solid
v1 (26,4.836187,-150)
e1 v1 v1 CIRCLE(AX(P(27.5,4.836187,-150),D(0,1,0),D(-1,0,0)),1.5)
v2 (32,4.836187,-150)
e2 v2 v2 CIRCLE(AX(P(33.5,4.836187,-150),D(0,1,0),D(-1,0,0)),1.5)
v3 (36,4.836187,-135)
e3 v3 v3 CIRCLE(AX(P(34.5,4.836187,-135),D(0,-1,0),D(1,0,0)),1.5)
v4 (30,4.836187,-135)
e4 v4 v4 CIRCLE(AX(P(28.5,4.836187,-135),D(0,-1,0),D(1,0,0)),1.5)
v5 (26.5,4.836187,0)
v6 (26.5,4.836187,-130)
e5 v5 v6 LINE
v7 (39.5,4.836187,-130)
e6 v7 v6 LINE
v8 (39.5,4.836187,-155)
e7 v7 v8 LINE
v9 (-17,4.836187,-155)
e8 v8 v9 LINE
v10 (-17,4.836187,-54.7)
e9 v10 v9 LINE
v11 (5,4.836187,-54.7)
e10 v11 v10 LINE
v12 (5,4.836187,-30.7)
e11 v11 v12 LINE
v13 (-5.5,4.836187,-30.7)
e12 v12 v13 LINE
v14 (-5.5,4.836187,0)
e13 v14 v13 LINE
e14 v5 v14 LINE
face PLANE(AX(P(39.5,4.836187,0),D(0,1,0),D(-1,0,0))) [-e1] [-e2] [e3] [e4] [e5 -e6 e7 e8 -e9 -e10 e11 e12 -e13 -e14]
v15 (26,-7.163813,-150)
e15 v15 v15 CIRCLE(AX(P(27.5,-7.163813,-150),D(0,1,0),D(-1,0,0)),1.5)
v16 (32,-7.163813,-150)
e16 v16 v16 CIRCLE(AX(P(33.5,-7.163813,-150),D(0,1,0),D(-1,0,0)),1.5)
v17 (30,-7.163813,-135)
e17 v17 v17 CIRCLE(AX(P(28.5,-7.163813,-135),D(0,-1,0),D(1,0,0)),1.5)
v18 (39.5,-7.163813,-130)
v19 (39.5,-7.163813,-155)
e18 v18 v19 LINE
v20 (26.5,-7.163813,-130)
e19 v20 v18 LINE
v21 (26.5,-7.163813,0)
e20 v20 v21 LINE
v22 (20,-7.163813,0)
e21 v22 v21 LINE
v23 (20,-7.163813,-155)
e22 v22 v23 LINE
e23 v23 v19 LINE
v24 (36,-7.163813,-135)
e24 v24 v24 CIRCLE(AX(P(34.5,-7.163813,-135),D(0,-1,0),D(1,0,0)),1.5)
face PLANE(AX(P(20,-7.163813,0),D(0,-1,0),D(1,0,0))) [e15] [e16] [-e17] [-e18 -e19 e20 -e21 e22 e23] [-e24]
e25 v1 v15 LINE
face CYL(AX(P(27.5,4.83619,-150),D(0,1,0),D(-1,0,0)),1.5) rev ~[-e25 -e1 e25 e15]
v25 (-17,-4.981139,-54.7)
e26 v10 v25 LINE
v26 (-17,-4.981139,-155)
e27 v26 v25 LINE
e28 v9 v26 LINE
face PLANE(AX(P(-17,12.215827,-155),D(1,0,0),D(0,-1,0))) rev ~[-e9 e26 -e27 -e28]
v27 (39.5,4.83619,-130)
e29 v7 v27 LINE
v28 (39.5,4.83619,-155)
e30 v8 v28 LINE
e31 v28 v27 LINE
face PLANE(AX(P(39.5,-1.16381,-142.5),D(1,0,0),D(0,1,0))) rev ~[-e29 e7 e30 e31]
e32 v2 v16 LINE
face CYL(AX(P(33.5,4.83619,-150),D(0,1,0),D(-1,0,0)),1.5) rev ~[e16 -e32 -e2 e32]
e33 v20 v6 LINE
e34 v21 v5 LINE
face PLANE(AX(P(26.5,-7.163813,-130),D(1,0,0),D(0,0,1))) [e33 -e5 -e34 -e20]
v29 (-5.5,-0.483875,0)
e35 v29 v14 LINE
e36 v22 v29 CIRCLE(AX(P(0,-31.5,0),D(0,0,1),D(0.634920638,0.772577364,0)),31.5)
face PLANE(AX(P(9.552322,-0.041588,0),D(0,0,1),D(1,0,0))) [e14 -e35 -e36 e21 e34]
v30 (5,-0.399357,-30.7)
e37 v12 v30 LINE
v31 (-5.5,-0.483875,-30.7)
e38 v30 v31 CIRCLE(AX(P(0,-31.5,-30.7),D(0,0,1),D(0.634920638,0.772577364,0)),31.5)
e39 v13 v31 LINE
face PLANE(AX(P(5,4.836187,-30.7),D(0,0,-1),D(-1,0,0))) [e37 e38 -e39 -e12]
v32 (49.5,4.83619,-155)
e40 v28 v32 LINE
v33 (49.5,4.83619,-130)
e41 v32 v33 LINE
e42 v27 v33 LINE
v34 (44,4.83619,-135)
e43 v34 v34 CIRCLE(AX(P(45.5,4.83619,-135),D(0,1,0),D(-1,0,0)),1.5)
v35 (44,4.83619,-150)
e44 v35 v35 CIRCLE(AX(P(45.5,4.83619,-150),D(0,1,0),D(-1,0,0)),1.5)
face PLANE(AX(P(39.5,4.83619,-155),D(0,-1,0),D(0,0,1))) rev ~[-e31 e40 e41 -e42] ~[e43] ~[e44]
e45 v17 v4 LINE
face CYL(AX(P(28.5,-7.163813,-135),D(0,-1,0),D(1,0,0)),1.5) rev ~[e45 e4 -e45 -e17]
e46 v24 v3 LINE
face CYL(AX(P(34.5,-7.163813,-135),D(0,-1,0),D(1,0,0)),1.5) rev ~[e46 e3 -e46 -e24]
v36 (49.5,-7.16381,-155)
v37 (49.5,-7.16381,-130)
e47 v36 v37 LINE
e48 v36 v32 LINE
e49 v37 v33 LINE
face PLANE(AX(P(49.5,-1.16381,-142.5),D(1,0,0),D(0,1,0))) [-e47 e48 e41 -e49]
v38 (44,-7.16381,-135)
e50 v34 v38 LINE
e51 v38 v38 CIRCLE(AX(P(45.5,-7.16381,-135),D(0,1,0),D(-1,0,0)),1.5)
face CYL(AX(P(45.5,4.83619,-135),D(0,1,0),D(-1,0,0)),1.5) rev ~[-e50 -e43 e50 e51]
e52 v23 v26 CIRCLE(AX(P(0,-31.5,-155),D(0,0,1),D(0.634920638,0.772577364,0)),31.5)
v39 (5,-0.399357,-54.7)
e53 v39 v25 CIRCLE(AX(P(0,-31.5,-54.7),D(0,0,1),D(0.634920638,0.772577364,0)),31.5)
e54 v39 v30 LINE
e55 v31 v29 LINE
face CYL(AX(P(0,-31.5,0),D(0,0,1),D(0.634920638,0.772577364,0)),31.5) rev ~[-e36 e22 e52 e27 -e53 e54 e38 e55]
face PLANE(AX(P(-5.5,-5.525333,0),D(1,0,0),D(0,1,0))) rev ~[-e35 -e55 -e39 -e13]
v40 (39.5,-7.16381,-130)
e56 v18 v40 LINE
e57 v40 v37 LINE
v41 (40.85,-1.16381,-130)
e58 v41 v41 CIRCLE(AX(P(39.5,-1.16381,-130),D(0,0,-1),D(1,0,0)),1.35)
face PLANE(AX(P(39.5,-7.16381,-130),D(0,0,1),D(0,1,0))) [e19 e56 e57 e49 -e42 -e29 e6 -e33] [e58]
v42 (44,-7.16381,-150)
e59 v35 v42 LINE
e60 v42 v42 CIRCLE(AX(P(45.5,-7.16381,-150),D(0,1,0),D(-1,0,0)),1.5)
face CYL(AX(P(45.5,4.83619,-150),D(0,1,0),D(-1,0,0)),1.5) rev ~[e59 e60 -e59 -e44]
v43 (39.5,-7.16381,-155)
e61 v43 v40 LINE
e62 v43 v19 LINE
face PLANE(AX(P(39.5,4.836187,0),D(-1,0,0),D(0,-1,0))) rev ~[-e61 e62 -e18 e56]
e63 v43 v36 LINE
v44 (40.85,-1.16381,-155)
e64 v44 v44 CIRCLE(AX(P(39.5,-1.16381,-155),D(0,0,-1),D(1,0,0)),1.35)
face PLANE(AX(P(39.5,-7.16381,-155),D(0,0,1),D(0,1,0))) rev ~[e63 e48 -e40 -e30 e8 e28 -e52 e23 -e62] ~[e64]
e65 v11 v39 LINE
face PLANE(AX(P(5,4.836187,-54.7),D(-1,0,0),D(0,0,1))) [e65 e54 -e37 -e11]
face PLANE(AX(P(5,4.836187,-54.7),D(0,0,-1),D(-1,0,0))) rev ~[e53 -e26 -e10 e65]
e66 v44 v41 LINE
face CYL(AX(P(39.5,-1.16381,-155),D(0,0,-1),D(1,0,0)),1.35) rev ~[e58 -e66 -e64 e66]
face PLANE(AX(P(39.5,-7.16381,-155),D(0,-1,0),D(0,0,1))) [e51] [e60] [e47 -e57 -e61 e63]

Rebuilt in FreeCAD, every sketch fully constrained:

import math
import FreeCAD as App
import Part
import Sketcher
from FreeCAD import Vector

doc = App.newDocument("Part")
body = doc.addObject("PartDesign::Body", "Body")

# Sketch on XY plane
sketch1 = body.newObject("Sketcher::SketchObject", "Sketch")
sketch1.AttachmentSupport = (doc.getObject("XY_Plane"), [""])
sketch1.MapMode = "FlatFace"
sketch1.addGeometry([
    Part.LineSegment(Vector(40, 5, 0), Vector(-20, 5, 0)),  # 0
    Part.LineSegment(Vector(-20, 5, 0), Vector(-20, -7, 0)),  # 1
    Part.ArcOfCircle(Part.Circle(Vector(0, -31, 0), Vector(0, 0, 1), 31), math.radians(51), math.radians(129)),  # 2
    Part.LineSegment(Vector(20, -7, 0), Vector(40, -7, 0)),  # 3
    Part.LineSegment(Vector(40, -7, 0), Vector(40, 5, 0)),  # 4
], False)
sketch1.addConstraint([
    Sketcher.Constraint("Coincident", 0, 2, 1, 1),
    Sketcher.Constraint("Coincident", 1, 2, 2, 2),
    Sketcher.Constraint("Coincident", 2, 1, 3, 1),
    Sketcher.Constraint("Coincident", 3, 2, 4, 1),
    Sketcher.Constraint("Coincident", 4, 2, 0, 1),
    Sketcher.Constraint("Horizontal", 0),
    Sketcher.Constraint("Vertical", 1),
    Sketcher.Constraint("Horizontal", 3),
    Sketcher.Constraint("Vertical", 4),
    Sketcher.Constraint("Symmetric", 1, 2, 2, 1, -2),
    Sketcher.Constraint("Radius", 2, 31.5),
    Sketcher.Constraint("DistanceY", 1, 2, 1, 1, 12.0),
    Sketcher.Constraint("DistanceX", 0, 2, 0, 1, 59.5),
    Sketcher.Constraint("DistanceX", 3, 1, 3, 2, 19.5),
    Sketcher.Constraint("DistanceY", 2, 3, -1, 1, 31.5),
])
pad1 = body.newObject("PartDesign::Pad", "Pad")
pad1.Profile = sketch1
pad1.Length = 155
pad1.Reversed = True

# Sketch on XZ plane
sketch2 = body.newObject("Sketcher::SketchObject", "Sketch001")
sketch2.AttachmentSupport = (doc.getObject("XZ_Plane"), [""])
sketch2.MapMode = "FlatFace"
sketch2.AttachmentOffset = App.Placement(Vector(0, 0, 7.163813), App.Rotation())
sketch2.addGeometry([
    Part.Circle(Vector(28.5, -135, 0), Vector(0, 0, 1), 1.5),  # 0
    Part.Circle(Vector(34.5, -135, 0), Vector(0, 0, 1), 1.5),  # 1
    Part.LineSegment(Vector(26.5, 0, 0), Vector(26.5, -130, 0)),  # 2
    Part.LineSegment(Vector(26.5, -130, 0), Vector(39.5, -130, 0)),  # 3
    Part.LineSegment(Vector(39.5, -130, 0), Vector(39.5, 0, 0)),  # 4
    Part.LineSegment(Vector(39.5, 0, 0), Vector(26.5, 0, 0)),  # 5
], False)
sketch2.addConstraint([
    Sketcher.Constraint("Coincident", 2, 2, 3, 1),
    Sketcher.Constraint("Coincident", 3, 2, 4, 1),
    Sketcher.Constraint("Coincident", 4, 2, 5, 1),
    Sketcher.Constraint("Coincident", 5, 2, 2, 1),
    Sketcher.Constraint("Vertical", 2),
    Sketcher.Constraint("Horizontal", 3),
    Sketcher.Constraint("Vertical", 4),
    Sketcher.Constraint("Horizontal", 5),
    Sketcher.Constraint("Equal", 0, 1),
    Sketcher.Constraint("PointOnObject", 4, 2, -1),
    Sketcher.Constraint("Horizontal", 0, 3, 1, 3),
    Sketcher.Constraint("Diameter", 0, 3.0),
    Sketcher.Constraint("DistanceX", 3, 1, 3, 2, 13.0),
    Sketcher.Constraint("DistanceY", 2, 2, 2, 1, 130.0),
    Sketcher.Constraint("DistanceY", 0, 3, -1, 1, 135.0),
    Sketcher.Constraint("DistanceX", 0, 3, 1, 3, 6.0),
    Sketcher.Constraint("DistanceX", 2, 2, 0, 3, 2.0),
    Sketcher.Constraint("DistanceX", -1, 1, 0, 3, 28.5),
])
pocket1 = body.newObject("PartDesign::Pocket", "Pocket")
pocket1.Profile = sketch2
pocket1.Type = "ThroughAll"

# Sketch on XY plane
sketch3 = body.newObject("Sketcher::SketchObject", "Sketch002")
sketch3.AttachmentSupport = (doc.getObject("XY_Plane"), [""])
sketch3.MapMode = "FlatFace"
sketch3.AttachmentOffset = App.Placement(Vector(0, 0, -155), App.Rotation())
sketch3.addGeometry([
    Part.LineSegment(Vector(-23, -12, 0), Vector(-23, 12, 0)),
    Part.LineSegment(Vector(-23, 12, 0), Vector(-17, 12, 0)),
    Part.LineSegment(Vector(-17, 12, 0), Vector(-17, -12, 0)),
    Part.LineSegment(Vector(-17, -12, 0), Vector(-23, -12, 0)),
], False)
sketch3.addConstraint([
    Sketcher.Constraint("Coincident", 0, 2, 1, 1),
    Sketcher.Constraint("Coincident", 1, 2, 2, 1),
    Sketcher.Constraint("Coincident", 2, 2, 3, 1),
    Sketcher.Constraint("Coincident", 3, 2, 0, 1),
    Sketcher.Constraint("Vertical", 0),
    Sketcher.Constraint("Horizontal", 1),
    Sketcher.Constraint("Vertical", 2),
    Sketcher.Constraint("Horizontal", 3),
    Sketcher.Constraint("DistanceX", 1, 2, -1, 1, 17.0),
    Sketcher.Constraint("DistanceX", 1, 1, 1, 2, 5.583172),
    Sketcher.Constraint("DistanceY", 0, 1, 0, 2, 23.950112),
    Sketcher.Constraint("DistanceY", -1, 1, 0, 2, 12.215827),
])
pocket2 = body.newObject("PartDesign::Pocket", "Pocket001")
pocket2.Profile = sketch3
pocket2.Type = "ThroughAll"
pocket2.Reversed = True

# Sketch on XZ plane
sketch4 = body.newObject("Sketcher::SketchObject", "Sketch003")
sketch4.AttachmentSupport = (doc.getObject("XZ_Plane"), [""])
sketch4.MapMode = "FlatFace"
sketch4.AttachmentOffset = App.Placement(Vector(0, 0, -4.836187), App.Rotation())
sketch4.addGeometry([
    Part.LineSegment(Vector(5, -31, 0), Vector(5, -55, 0)),
    Part.LineSegment(Vector(5, -55, 0), Vector(-17, -55, 0)),
    Part.LineSegment(Vector(-17, -55, 0), Vector(-17, -31, 0)),
    Part.LineSegment(Vector(-17, -31, 0), Vector(5, -31, 0)),
], False)
sketch4.addConstraint([
    Sketcher.Constraint("Coincident", 0, 2, 1, 1),
    Sketcher.Constraint("Coincident", 1, 2, 2, 1),
    Sketcher.Constraint("Coincident", 2, 2, 3, 1),
    Sketcher.Constraint("Coincident", 3, 2, 0, 1),
    Sketcher.Constraint("Vertical", 0),
    Sketcher.Constraint("Horizontal", 1),
    Sketcher.Constraint("Vertical", 2),
    Sketcher.Constraint("Horizontal", 3),
    Sketcher.Constraint("DistanceX", 1, 2, 1, 1, 22.0),
    Sketcher.Constraint("DistanceY", 0, 2, 0, 1, 24.0),
    Sketcher.Constraint("DistanceX", -1, 1, 0, 2, 5.0),
    Sketcher.Constraint("DistanceY", 0, 2, -1, 1, 54.7),
])
pocket3 = body.newObject("PartDesign::Pocket", "Pocket002")
pocket3.Profile = sketch4
pocket3.Type = "ThroughAll"
pocket3.Reversed = True

# Sketch on XY plane
sketch5 = body.newObject("Sketcher::SketchObject", "Sketch004")
sketch5.AttachmentSupport = (doc.getObject("XY_Plane"), [""])
sketch5.MapMode = "FlatFace"
sketch5.addGeometry([
    Part.LineSegment(Vector(-17, 7, 0), Vector(-17, -6, 0)),
    Part.LineSegment(Vector(-17, -6, 0), Vector(-6, -6, 0)),
    Part.LineSegment(Vector(-6, -6, 0), Vector(-6, 7, 0)),
    Part.LineSegment(Vector(-6, 7, 0), Vector(-17, 7, 0)),
], False)
sketch5.addConstraint([
    Sketcher.Constraint("Coincident", 0, 2, 1, 1),
    Sketcher.Constraint("Coincident", 1, 2, 2, 1),
    Sketcher.Constraint("Coincident", 2, 2, 3, 1),
    Sketcher.Constraint("Coincident", 3, 2, 0, 1),
    Sketcher.Constraint("Vertical", 0),
    Sketcher.Constraint("Horizontal", 1),
    Sketcher.Constraint("Vertical", 2),
    Sketcher.Constraint("Horizontal", 3),
    Sketcher.Constraint("DistanceX", 1, 1, 1, 2, 11.5),
    Sketcher.Constraint("DistanceX", 0, 2, -1, 1, 17.0),
    Sketcher.Constraint("DistanceY", 0, 2, 0, 1, 12.924639),
    Sketcher.Constraint("DistanceY", 0, 2, -1, 1, 5.525333),
])
pocket4 = body.newObject("PartDesign::Pocket", "Pocket003")
pocket4.Profile = sketch5
pocket4.Length = 31

# Sketch on YZ plane
sketch6 = body.newObject("Sketcher::SketchObject", "Sketch005")
sketch6.AttachmentSupport = (doc.getObject("YZ_Plane"), [""])
sketch6.MapMode = "FlatFace"
sketch6.AttachmentOffset = App.Placement(Vector(0, 0, 39.5), App.Rotation())
sketch6.addGeometry([
    Part.LineSegment(Vector(-7, -130, 0), Vector(-7, -155, 0)),
    Part.LineSegment(Vector(-7, -155, 0), Vector(5, -155, 0)),
    Part.LineSegment(Vector(5, -155, 0), Vector(5, -130, 0)),
    Part.LineSegment(Vector(5, -130, 0), Vector(-7, -130, 0)),
], False)
sketch6.addConstraint([
    Sketcher.Constraint("Coincident", 0, 2, 1, 1),
    Sketcher.Constraint("Coincident", 1, 2, 2, 1),
    Sketcher.Constraint("Coincident", 2, 2, 3, 1),
    Sketcher.Constraint("Coincident", 3, 2, 0, 1),
    Sketcher.Constraint("Vertical", 0),
    Sketcher.Constraint("Horizontal", 1),
    Sketcher.Constraint("Vertical", 2),
    Sketcher.Constraint("Horizontal", 3),
    Sketcher.Constraint("DistanceX", 1, 1, 1, 2, 12.0),
    Sketcher.Constraint("DistanceY", 0, 2, 0, 1, 25.0),
    Sketcher.Constraint("DistanceY", 0, 2, -1, 1, 155.0),
    Sketcher.Constraint("DistanceX", 0, 2, -1, 1, 7.16381),
])
pad2 = body.newObject("PartDesign::Pad", "Pad001")
pad2.Profile = sketch6
pad2.Length = 10

# Sketch on XY plane
sketch7 = body.newObject("Sketcher::SketchObject", "Sketch006")
sketch7.AttachmentSupport = (doc.getObject("XY_Plane"), [""])
sketch7.MapMode = "FlatFace"
sketch7.AttachmentOffset = App.Placement(Vector(0, 0, -155), App.Rotation())
sketch7.addGeometry(Part.Circle(Vector(39.5, -1.2, 0), Vector(0, 0, 1), 1.4), False)
sketch7.addConstraint([
    Sketcher.Constraint("Diameter", 0, 2.7),
    Sketcher.Constraint("DistanceX", -1, 1, 0, 3, 39.5),
    Sketcher.Constraint("DistanceY", 0, 3, -1, 1, 1.16381),
])
pocket5 = body.newObject("PartDesign::Pocket", "Pocket004")
pocket5.Profile = sketch7
pocket5.Type = "ThroughAll"
pocket5.Reversed = True

# Sketch on XZ plane
sketch8 = body.newObject("Sketcher::SketchObject", "Sketch007")
sketch8.AttachmentSupport = (doc.getObject("XZ_Plane"), [""])
sketch8.MapMode = "FlatFace"
sketch8.AttachmentOffset = App.Placement(Vector(0, 0, -4.83619), App.Rotation())
sketch8.addGeometry([
    Part.Circle(Vector(45.5, -135, 0), Vector(0, 0, 1), 1.5),
    Part.Circle(Vector(45.5, -150, 0), Vector(0, 0, 1), 1.5),
    Part.Circle(Vector(33.5, -150, 0), Vector(0, 0, 1), 1.5),
    Part.Circle(Vector(27.5, -150, 0), Vector(0, 0, 1), 1.5),
], False)
sketch8.addConstraint([
    Sketcher.Constraint("Equal", 0, 1),
    Sketcher.Constraint("Equal", 1, 2),
    Sketcher.Constraint("Equal", 2, 3),
    Sketcher.Constraint("Horizontal", 1, 3, 2, 3),
    Sketcher.Constraint("Horizontal", 2, 3, 3, 3),
    Sketcher.Constraint("Vertical", 0, 3, 1, 3),
    Sketcher.Constraint("Diameter", 0, 3.0),
    Sketcher.Constraint("DistanceY", 0, 3, -1, 1, 135.0),
    Sketcher.Constraint("DistanceY", 1, 3, -1, 1, 150.0),
    Sketcher.Constraint("DistanceX", 2, 3, 1, 3, 12.0),
    Sketcher.Constraint("DistanceX", 3, 3, 2, 3, 6.0),
    Sketcher.Constraint("DistanceX", -1, 1, 0, 3, 45.5),
])
pocket6 = body.newObject("PartDesign::Pocket", "Pocket005")
pocket6.Profile = sketch8
pocket6.Type = "ThroughAll"
pocket6.Reversed = True

doc.recompute()
